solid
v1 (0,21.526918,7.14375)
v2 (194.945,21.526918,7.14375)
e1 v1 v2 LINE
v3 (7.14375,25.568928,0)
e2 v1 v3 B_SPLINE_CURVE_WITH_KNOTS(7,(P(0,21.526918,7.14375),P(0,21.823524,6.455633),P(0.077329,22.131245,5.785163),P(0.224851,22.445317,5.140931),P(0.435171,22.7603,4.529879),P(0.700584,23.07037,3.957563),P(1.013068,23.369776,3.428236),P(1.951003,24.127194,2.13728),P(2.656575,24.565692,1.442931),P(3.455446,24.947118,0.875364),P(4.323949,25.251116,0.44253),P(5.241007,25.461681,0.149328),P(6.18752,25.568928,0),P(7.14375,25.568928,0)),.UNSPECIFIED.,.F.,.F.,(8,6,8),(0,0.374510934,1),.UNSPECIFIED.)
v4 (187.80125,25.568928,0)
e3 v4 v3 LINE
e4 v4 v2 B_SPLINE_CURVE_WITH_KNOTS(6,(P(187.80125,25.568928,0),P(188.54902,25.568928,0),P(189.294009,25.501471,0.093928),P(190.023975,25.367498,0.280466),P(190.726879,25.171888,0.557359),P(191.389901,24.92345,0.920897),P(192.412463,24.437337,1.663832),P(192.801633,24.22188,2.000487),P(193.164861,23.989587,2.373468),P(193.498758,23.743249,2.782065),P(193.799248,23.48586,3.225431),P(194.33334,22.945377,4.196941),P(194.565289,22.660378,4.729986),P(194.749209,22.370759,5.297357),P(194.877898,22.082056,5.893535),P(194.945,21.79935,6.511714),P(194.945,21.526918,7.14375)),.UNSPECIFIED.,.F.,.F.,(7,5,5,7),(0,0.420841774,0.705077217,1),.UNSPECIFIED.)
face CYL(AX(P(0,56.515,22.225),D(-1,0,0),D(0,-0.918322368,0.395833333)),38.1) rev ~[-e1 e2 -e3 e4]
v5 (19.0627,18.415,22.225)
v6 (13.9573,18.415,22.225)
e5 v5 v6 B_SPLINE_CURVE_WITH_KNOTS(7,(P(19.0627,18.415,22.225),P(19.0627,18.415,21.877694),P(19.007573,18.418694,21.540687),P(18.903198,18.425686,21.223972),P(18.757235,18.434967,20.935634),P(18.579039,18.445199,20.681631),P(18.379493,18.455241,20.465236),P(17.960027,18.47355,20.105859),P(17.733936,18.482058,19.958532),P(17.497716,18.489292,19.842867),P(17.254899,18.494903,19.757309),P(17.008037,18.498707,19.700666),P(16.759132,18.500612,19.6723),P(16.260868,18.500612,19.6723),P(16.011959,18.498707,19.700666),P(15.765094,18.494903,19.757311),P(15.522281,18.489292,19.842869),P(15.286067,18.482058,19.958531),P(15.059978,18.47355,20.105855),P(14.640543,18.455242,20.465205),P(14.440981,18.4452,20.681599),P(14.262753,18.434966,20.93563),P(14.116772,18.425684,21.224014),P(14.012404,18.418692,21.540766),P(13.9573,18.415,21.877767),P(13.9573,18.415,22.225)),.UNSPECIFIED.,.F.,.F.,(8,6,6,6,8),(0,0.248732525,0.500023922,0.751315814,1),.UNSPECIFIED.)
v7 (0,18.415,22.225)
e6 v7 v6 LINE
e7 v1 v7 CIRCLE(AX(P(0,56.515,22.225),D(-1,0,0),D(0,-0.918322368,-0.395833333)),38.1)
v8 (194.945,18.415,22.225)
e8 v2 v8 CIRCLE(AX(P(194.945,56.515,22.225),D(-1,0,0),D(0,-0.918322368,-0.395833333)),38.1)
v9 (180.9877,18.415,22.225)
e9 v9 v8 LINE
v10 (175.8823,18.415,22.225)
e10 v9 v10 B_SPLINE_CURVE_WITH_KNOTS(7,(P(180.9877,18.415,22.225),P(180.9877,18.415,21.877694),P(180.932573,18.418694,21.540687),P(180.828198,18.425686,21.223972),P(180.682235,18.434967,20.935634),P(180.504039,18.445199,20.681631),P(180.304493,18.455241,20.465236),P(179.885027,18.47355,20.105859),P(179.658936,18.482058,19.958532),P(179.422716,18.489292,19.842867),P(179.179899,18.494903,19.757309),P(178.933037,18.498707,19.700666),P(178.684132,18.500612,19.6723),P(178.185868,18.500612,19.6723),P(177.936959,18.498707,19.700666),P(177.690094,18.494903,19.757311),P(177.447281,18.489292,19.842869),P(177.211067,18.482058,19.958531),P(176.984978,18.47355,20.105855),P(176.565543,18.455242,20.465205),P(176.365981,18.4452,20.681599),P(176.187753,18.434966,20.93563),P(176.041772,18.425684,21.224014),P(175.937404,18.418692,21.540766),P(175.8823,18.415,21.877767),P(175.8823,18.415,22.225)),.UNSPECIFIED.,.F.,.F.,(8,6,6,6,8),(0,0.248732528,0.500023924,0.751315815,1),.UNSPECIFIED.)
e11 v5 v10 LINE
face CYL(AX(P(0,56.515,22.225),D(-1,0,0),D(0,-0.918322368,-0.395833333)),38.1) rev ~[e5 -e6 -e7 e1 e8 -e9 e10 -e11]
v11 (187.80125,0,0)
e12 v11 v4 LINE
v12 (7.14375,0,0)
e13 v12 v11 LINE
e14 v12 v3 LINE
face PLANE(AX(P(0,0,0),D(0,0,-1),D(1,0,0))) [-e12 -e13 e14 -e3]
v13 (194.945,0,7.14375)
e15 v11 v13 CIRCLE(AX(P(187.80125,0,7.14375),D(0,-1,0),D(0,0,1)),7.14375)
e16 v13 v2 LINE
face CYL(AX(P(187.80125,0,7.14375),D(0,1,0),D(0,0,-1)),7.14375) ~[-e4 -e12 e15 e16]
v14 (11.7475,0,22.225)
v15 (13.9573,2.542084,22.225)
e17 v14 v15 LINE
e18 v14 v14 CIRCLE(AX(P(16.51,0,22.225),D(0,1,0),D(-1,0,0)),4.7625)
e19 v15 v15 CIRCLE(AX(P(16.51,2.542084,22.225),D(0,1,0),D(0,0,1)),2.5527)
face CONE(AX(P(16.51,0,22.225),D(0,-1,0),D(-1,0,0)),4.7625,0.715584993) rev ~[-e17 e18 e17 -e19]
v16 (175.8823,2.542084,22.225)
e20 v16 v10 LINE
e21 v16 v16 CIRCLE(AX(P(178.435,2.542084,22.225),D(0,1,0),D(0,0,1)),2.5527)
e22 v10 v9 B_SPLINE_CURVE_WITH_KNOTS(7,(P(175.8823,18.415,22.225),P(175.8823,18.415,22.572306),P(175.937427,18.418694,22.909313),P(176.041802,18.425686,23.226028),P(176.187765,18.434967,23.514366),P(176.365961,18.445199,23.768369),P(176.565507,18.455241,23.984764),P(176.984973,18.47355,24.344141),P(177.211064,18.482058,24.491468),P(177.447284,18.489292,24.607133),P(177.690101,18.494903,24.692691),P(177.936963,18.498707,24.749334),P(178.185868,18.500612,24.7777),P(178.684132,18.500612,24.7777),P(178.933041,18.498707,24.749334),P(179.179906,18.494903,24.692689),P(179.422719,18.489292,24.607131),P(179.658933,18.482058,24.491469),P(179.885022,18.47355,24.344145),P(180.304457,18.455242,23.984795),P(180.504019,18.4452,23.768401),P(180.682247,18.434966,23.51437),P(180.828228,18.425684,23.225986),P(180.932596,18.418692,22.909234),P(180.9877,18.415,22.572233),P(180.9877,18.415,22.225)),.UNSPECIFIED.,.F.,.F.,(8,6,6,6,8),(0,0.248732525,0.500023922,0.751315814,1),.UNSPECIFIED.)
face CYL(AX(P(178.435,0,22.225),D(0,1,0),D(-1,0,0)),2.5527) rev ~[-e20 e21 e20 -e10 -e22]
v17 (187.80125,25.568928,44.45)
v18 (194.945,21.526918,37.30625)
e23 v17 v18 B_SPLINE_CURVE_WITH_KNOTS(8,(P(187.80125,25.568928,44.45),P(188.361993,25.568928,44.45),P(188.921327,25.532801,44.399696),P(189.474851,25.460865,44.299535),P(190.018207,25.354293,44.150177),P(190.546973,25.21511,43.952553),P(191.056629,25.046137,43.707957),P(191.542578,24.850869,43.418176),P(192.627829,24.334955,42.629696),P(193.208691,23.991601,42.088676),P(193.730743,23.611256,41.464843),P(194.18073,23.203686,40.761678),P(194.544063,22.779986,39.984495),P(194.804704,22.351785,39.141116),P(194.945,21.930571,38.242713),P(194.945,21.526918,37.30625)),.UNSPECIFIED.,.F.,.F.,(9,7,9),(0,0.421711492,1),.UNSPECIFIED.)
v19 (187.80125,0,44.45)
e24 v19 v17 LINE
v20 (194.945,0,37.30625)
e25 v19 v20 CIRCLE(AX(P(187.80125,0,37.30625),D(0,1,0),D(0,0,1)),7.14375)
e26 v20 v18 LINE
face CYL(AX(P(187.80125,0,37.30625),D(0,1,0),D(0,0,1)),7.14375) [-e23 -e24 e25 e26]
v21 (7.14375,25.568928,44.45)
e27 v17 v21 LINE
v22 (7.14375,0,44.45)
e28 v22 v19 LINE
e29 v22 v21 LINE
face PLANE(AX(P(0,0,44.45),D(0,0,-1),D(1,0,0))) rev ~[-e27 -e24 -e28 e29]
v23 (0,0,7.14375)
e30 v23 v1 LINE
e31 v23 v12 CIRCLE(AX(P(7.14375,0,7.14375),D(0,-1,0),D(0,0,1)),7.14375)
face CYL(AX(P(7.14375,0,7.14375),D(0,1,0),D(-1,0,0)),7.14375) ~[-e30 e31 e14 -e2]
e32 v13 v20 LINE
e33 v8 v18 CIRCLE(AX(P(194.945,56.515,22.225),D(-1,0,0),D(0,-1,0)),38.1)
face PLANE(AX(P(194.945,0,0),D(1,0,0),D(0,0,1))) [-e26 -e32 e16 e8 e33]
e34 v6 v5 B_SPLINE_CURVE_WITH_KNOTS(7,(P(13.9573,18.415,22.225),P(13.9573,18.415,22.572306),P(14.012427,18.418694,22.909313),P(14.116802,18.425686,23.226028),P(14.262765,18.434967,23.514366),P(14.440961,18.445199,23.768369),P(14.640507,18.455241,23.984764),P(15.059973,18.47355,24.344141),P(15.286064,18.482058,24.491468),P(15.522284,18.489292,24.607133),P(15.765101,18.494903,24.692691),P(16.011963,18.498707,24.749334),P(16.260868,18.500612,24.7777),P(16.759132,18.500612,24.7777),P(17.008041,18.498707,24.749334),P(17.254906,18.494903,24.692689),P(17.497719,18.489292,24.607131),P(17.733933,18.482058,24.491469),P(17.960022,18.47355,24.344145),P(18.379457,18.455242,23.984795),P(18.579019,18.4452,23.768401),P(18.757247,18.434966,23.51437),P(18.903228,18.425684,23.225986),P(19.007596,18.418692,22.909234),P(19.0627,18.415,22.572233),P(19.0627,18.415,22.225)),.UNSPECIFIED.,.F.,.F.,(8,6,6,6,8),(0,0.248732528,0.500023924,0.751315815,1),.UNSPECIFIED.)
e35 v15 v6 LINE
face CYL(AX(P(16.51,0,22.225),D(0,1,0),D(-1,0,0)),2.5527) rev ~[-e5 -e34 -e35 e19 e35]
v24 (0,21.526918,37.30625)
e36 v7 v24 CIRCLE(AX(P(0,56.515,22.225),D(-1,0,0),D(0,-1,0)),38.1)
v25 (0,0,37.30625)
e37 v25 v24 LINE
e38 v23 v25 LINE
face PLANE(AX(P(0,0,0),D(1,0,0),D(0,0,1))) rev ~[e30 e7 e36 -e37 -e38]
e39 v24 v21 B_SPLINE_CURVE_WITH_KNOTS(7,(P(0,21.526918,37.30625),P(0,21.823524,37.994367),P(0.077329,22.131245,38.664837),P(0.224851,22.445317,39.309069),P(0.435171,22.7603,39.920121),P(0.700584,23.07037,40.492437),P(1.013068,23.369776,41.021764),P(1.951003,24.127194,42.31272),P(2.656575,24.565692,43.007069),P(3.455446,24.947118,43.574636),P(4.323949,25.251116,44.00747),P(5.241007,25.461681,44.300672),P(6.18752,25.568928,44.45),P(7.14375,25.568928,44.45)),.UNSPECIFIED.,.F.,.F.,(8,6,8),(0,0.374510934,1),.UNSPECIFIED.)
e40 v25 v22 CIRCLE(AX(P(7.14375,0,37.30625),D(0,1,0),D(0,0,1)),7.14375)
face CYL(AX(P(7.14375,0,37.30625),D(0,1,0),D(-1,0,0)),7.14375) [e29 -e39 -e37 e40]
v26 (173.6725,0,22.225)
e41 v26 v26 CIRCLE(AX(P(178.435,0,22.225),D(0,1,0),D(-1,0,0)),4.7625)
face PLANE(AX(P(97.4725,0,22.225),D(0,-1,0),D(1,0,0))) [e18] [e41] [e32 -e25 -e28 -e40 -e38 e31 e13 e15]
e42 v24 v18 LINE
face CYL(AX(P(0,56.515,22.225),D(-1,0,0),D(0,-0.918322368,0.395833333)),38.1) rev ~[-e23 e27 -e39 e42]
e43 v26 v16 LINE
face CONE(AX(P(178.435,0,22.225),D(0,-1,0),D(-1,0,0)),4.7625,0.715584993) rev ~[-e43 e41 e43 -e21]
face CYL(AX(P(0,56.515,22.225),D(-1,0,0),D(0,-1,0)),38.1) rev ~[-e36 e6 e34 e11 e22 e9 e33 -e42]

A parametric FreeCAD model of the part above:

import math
import FreeCAD as App
import Part
import Sketcher
from FreeCAD import Vector
Q = App.Units.Quantity


def edges_at(feature, points):
    """Names of the edges that pass closest to the given points."""
    edges = feature.Shape.Edges
    near = lambda p: min(range(len(edges)), key=lambda i: edges[i].distToShape(Part.Vertex(*p))[0])
    return sorted({f"Edge{near(p) + 1}" for p in points})


def add_polygon(sketch, points):
    """Adds a closed chain of lines whose ends are joined by coincident constraints."""
    first, n = sketch.GeometryCount, len(points)
    for a, b in zip(points, points[1:] + points[:1]):
        sketch.addGeometry(Part.LineSegment(App.Vector(*a, 0), App.Vector(*b, 0)), False)
    for i in range(n):
        sketch.addConstraint(Sketcher.Constraint("Coincident", first + i, 2, first + (i + 1) % n, 1))

doc = App.newDocument("Part")
body = doc.addObject("PartDesign::Body", "Body")

sketch1 = body.newObject("Sketcher::SketchObject", "Sketch")
sketch1.AttachmentSupport = (doc.getObject("XZ_Plane"), [""])
sketch1.MapMode = "FlatFace"
add_polygon(sketch1, [(0, 44), (0, 0), (195, 0), (195, 44)])
sketch1.addConstraint([
    Sketcher.Constraint("Vertical", 0),
    Sketcher.Constraint("Horizontal", 1),
    Sketcher.Constraint("Vertical", 2),
    Sketcher.Constraint("Horizontal", 3),
    Sketcher.Constraint("Coincident", 0, 2, -1, 1),
    Sketcher.Constraint("DistanceY", 0, 2, 0, 1, Q("1.75 in")),
    Sketcher.Constraint("DistanceX", 1, 1, 1, 2, Q("7.675 in")),
])
pad1 = body.newObject("PartDesign::Pad", "Pad")
pad1.Profile = sketch1
pad1.Length = Q("1.6 in")
pad1.Reversed = True

sketch2 = body.newObject("Sketcher::SketchObject", "Sketch001")
sketch2.AttachmentSupport = (doc.getObject("XZ_Plane"), [""])
sketch2.MapMode = "FlatFace"
sketch2.addGeometry([
    Part.Circle(Vector(16.5, 22.2, 0), Vector(0, 0, 1), 2.6),
    Part.Circle(Vector(178.4, 22.2, 0), Vector(0, 0, 1), 2.6),
], False)
sketch2.addConstraint([
    Sketcher.Constraint("Equal", 0, 1),
    Sketcher.Constraint("Horizontal", 0, 3, 1, 3),
    Sketcher.Constraint("Diameter", 0, Q("0.201 in")),
    Sketcher.Constraint("DistanceX", -1, 1, 0, 3, Q("0.65 in")),
    Sketcher.Constraint("DistanceY", -1, 1, 0, 3, Q("0.875 in")),
    Sketcher.Constraint("DistanceX", -1, 1, 1, 3, Q("7.025 in")),
])
doc.recompute()
hole = body.newObject("PartDesign::Hole", "Hole")
hole.Profile = sketch2
hole.ThreadType = "None"
hole.Diameter = Q("0.201 in")
hole.DepthType = "Dimension"
hole.Depth = Q("1 in")
hole.DrillPoint = "Angled"
hole.DrillPointAngle = 118
hole.HoleCutType = "Countersink"
hole.HoleCutDiameter = Q("0.375 in")
hole.HoleCutCountersinkAngle = 82
doc.recompute()

fillet = body.newObject("PartDesign::Fillet", "Fillet")
fillet.Base = (hole, edges_at(hole, [
    (0, 20.32, 44.45),
    (194.945, 20.32, 44.45),
    (0, 20.32, 0),
    (194.945, 20.32, 0),
]))
fillet.Radius = Q("0.28125 in")

sketch3 = body.newObject("Sketcher::SketchObject", "Sketch002")
sketch3.AttachmentSupport = (doc.getObject("YZ_Plane"), [""])
sketch3.MapMode = "FlatFace"
sketch3.addGeometry([
    Part.ArcOfCircle(Part.Circle(Vector(57, 22, 0), Vector(0, 0, 1), 38), math.radians(157), math.radians(180)),
    Part.ArcOfCircle(Part.Circle(Vector(57, 22, 0), Vector(0, 0, 1), 38), math.radians(-157), math.radians(157)),
    Part.ArcOfCircle(Part.Circle(Vector(57, 22, 0), Vector(0, 0, 1), 38), math.radians(180), math.radians(203)),
], False)
sketch3.addConstraint([
    Sketcher.Constraint("Tangent", 0, 1, 1, 2),
    Sketcher.Constraint("Tangent", 1, 1, 2, 2),
    Sketcher.Constraint("Tangent", 2, 1, 0, 2),
    Sketcher.Constraint("Horizontal", 1, 3, 2, 1),
    Sketcher.Constraint("Vertical", 0, 1, 1, 1),
    Sketcher.Constraint("Radius", 0, Q("1.5 in")),
    Sketcher.Constraint("DistanceX", -1, 1, 0, 3, Q("2.225 in")),
    Sketcher.Constraint("DistanceY", -1, 1, 0, 3, Q("0.875 in")),
    Sketcher.Constraint("DistanceY", -1, 1, 0, 1, Q("1.46875 in")),
])
pocket1 = body.newObject("PartDesign::Pocket", "Pocket")
pocket1.Profile = sketch3
pocket1.Type = "ThroughAll"
pocket1.Reversed = True

doc.recompute()
